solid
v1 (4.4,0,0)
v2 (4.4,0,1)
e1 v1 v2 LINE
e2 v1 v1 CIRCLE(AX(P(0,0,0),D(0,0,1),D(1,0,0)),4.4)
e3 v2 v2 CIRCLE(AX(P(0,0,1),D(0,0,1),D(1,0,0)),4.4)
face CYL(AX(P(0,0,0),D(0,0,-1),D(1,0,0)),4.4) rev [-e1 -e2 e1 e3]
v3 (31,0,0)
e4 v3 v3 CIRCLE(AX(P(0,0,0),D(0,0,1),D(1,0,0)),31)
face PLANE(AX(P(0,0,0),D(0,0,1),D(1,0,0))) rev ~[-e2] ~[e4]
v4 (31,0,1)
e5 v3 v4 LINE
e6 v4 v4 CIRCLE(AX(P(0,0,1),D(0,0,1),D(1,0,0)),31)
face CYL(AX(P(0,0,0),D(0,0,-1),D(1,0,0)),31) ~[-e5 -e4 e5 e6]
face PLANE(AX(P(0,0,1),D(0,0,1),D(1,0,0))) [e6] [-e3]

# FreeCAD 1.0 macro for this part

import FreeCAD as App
import Part
import Sketcher
from FreeCAD import Vector

doc = App.newDocument("Part")
body = doc.addObject("PartDesign::Body", "Body")

# Sketch on XY plane
sketch1 = body.newObject("Sketcher::SketchObject", "Sketch")
sketch1.AttachmentSupport = (doc.getObject("XY_Plane"), [""])
sketch1.MapMode = "FlatFace"
sketch1.addGeometry([
    Part.Circle(Vector(0, 0, 0), Vector(0, 0, 1), 31),
    Part.Circle(Vector(0, 0, 0), Vector(0, 0, 1), 4.4),
], False)
sketch1.addConstraint([
    Sketcher.Constraint("Coincident", 0, 3, -1, 1),
    Sketcher.Constraint("Coincident", 1, 3, -1, 1),
    Sketcher.Constraint("Diameter", 0, 62.0),
    Sketcher.Constraint("Diameter", 1, 8.8),
])
pad1 = body.newObject("PartDesign::Pad", "Pad")
pad1.Profile = sketch1
pad1.Length = 1

doc.recompute()
